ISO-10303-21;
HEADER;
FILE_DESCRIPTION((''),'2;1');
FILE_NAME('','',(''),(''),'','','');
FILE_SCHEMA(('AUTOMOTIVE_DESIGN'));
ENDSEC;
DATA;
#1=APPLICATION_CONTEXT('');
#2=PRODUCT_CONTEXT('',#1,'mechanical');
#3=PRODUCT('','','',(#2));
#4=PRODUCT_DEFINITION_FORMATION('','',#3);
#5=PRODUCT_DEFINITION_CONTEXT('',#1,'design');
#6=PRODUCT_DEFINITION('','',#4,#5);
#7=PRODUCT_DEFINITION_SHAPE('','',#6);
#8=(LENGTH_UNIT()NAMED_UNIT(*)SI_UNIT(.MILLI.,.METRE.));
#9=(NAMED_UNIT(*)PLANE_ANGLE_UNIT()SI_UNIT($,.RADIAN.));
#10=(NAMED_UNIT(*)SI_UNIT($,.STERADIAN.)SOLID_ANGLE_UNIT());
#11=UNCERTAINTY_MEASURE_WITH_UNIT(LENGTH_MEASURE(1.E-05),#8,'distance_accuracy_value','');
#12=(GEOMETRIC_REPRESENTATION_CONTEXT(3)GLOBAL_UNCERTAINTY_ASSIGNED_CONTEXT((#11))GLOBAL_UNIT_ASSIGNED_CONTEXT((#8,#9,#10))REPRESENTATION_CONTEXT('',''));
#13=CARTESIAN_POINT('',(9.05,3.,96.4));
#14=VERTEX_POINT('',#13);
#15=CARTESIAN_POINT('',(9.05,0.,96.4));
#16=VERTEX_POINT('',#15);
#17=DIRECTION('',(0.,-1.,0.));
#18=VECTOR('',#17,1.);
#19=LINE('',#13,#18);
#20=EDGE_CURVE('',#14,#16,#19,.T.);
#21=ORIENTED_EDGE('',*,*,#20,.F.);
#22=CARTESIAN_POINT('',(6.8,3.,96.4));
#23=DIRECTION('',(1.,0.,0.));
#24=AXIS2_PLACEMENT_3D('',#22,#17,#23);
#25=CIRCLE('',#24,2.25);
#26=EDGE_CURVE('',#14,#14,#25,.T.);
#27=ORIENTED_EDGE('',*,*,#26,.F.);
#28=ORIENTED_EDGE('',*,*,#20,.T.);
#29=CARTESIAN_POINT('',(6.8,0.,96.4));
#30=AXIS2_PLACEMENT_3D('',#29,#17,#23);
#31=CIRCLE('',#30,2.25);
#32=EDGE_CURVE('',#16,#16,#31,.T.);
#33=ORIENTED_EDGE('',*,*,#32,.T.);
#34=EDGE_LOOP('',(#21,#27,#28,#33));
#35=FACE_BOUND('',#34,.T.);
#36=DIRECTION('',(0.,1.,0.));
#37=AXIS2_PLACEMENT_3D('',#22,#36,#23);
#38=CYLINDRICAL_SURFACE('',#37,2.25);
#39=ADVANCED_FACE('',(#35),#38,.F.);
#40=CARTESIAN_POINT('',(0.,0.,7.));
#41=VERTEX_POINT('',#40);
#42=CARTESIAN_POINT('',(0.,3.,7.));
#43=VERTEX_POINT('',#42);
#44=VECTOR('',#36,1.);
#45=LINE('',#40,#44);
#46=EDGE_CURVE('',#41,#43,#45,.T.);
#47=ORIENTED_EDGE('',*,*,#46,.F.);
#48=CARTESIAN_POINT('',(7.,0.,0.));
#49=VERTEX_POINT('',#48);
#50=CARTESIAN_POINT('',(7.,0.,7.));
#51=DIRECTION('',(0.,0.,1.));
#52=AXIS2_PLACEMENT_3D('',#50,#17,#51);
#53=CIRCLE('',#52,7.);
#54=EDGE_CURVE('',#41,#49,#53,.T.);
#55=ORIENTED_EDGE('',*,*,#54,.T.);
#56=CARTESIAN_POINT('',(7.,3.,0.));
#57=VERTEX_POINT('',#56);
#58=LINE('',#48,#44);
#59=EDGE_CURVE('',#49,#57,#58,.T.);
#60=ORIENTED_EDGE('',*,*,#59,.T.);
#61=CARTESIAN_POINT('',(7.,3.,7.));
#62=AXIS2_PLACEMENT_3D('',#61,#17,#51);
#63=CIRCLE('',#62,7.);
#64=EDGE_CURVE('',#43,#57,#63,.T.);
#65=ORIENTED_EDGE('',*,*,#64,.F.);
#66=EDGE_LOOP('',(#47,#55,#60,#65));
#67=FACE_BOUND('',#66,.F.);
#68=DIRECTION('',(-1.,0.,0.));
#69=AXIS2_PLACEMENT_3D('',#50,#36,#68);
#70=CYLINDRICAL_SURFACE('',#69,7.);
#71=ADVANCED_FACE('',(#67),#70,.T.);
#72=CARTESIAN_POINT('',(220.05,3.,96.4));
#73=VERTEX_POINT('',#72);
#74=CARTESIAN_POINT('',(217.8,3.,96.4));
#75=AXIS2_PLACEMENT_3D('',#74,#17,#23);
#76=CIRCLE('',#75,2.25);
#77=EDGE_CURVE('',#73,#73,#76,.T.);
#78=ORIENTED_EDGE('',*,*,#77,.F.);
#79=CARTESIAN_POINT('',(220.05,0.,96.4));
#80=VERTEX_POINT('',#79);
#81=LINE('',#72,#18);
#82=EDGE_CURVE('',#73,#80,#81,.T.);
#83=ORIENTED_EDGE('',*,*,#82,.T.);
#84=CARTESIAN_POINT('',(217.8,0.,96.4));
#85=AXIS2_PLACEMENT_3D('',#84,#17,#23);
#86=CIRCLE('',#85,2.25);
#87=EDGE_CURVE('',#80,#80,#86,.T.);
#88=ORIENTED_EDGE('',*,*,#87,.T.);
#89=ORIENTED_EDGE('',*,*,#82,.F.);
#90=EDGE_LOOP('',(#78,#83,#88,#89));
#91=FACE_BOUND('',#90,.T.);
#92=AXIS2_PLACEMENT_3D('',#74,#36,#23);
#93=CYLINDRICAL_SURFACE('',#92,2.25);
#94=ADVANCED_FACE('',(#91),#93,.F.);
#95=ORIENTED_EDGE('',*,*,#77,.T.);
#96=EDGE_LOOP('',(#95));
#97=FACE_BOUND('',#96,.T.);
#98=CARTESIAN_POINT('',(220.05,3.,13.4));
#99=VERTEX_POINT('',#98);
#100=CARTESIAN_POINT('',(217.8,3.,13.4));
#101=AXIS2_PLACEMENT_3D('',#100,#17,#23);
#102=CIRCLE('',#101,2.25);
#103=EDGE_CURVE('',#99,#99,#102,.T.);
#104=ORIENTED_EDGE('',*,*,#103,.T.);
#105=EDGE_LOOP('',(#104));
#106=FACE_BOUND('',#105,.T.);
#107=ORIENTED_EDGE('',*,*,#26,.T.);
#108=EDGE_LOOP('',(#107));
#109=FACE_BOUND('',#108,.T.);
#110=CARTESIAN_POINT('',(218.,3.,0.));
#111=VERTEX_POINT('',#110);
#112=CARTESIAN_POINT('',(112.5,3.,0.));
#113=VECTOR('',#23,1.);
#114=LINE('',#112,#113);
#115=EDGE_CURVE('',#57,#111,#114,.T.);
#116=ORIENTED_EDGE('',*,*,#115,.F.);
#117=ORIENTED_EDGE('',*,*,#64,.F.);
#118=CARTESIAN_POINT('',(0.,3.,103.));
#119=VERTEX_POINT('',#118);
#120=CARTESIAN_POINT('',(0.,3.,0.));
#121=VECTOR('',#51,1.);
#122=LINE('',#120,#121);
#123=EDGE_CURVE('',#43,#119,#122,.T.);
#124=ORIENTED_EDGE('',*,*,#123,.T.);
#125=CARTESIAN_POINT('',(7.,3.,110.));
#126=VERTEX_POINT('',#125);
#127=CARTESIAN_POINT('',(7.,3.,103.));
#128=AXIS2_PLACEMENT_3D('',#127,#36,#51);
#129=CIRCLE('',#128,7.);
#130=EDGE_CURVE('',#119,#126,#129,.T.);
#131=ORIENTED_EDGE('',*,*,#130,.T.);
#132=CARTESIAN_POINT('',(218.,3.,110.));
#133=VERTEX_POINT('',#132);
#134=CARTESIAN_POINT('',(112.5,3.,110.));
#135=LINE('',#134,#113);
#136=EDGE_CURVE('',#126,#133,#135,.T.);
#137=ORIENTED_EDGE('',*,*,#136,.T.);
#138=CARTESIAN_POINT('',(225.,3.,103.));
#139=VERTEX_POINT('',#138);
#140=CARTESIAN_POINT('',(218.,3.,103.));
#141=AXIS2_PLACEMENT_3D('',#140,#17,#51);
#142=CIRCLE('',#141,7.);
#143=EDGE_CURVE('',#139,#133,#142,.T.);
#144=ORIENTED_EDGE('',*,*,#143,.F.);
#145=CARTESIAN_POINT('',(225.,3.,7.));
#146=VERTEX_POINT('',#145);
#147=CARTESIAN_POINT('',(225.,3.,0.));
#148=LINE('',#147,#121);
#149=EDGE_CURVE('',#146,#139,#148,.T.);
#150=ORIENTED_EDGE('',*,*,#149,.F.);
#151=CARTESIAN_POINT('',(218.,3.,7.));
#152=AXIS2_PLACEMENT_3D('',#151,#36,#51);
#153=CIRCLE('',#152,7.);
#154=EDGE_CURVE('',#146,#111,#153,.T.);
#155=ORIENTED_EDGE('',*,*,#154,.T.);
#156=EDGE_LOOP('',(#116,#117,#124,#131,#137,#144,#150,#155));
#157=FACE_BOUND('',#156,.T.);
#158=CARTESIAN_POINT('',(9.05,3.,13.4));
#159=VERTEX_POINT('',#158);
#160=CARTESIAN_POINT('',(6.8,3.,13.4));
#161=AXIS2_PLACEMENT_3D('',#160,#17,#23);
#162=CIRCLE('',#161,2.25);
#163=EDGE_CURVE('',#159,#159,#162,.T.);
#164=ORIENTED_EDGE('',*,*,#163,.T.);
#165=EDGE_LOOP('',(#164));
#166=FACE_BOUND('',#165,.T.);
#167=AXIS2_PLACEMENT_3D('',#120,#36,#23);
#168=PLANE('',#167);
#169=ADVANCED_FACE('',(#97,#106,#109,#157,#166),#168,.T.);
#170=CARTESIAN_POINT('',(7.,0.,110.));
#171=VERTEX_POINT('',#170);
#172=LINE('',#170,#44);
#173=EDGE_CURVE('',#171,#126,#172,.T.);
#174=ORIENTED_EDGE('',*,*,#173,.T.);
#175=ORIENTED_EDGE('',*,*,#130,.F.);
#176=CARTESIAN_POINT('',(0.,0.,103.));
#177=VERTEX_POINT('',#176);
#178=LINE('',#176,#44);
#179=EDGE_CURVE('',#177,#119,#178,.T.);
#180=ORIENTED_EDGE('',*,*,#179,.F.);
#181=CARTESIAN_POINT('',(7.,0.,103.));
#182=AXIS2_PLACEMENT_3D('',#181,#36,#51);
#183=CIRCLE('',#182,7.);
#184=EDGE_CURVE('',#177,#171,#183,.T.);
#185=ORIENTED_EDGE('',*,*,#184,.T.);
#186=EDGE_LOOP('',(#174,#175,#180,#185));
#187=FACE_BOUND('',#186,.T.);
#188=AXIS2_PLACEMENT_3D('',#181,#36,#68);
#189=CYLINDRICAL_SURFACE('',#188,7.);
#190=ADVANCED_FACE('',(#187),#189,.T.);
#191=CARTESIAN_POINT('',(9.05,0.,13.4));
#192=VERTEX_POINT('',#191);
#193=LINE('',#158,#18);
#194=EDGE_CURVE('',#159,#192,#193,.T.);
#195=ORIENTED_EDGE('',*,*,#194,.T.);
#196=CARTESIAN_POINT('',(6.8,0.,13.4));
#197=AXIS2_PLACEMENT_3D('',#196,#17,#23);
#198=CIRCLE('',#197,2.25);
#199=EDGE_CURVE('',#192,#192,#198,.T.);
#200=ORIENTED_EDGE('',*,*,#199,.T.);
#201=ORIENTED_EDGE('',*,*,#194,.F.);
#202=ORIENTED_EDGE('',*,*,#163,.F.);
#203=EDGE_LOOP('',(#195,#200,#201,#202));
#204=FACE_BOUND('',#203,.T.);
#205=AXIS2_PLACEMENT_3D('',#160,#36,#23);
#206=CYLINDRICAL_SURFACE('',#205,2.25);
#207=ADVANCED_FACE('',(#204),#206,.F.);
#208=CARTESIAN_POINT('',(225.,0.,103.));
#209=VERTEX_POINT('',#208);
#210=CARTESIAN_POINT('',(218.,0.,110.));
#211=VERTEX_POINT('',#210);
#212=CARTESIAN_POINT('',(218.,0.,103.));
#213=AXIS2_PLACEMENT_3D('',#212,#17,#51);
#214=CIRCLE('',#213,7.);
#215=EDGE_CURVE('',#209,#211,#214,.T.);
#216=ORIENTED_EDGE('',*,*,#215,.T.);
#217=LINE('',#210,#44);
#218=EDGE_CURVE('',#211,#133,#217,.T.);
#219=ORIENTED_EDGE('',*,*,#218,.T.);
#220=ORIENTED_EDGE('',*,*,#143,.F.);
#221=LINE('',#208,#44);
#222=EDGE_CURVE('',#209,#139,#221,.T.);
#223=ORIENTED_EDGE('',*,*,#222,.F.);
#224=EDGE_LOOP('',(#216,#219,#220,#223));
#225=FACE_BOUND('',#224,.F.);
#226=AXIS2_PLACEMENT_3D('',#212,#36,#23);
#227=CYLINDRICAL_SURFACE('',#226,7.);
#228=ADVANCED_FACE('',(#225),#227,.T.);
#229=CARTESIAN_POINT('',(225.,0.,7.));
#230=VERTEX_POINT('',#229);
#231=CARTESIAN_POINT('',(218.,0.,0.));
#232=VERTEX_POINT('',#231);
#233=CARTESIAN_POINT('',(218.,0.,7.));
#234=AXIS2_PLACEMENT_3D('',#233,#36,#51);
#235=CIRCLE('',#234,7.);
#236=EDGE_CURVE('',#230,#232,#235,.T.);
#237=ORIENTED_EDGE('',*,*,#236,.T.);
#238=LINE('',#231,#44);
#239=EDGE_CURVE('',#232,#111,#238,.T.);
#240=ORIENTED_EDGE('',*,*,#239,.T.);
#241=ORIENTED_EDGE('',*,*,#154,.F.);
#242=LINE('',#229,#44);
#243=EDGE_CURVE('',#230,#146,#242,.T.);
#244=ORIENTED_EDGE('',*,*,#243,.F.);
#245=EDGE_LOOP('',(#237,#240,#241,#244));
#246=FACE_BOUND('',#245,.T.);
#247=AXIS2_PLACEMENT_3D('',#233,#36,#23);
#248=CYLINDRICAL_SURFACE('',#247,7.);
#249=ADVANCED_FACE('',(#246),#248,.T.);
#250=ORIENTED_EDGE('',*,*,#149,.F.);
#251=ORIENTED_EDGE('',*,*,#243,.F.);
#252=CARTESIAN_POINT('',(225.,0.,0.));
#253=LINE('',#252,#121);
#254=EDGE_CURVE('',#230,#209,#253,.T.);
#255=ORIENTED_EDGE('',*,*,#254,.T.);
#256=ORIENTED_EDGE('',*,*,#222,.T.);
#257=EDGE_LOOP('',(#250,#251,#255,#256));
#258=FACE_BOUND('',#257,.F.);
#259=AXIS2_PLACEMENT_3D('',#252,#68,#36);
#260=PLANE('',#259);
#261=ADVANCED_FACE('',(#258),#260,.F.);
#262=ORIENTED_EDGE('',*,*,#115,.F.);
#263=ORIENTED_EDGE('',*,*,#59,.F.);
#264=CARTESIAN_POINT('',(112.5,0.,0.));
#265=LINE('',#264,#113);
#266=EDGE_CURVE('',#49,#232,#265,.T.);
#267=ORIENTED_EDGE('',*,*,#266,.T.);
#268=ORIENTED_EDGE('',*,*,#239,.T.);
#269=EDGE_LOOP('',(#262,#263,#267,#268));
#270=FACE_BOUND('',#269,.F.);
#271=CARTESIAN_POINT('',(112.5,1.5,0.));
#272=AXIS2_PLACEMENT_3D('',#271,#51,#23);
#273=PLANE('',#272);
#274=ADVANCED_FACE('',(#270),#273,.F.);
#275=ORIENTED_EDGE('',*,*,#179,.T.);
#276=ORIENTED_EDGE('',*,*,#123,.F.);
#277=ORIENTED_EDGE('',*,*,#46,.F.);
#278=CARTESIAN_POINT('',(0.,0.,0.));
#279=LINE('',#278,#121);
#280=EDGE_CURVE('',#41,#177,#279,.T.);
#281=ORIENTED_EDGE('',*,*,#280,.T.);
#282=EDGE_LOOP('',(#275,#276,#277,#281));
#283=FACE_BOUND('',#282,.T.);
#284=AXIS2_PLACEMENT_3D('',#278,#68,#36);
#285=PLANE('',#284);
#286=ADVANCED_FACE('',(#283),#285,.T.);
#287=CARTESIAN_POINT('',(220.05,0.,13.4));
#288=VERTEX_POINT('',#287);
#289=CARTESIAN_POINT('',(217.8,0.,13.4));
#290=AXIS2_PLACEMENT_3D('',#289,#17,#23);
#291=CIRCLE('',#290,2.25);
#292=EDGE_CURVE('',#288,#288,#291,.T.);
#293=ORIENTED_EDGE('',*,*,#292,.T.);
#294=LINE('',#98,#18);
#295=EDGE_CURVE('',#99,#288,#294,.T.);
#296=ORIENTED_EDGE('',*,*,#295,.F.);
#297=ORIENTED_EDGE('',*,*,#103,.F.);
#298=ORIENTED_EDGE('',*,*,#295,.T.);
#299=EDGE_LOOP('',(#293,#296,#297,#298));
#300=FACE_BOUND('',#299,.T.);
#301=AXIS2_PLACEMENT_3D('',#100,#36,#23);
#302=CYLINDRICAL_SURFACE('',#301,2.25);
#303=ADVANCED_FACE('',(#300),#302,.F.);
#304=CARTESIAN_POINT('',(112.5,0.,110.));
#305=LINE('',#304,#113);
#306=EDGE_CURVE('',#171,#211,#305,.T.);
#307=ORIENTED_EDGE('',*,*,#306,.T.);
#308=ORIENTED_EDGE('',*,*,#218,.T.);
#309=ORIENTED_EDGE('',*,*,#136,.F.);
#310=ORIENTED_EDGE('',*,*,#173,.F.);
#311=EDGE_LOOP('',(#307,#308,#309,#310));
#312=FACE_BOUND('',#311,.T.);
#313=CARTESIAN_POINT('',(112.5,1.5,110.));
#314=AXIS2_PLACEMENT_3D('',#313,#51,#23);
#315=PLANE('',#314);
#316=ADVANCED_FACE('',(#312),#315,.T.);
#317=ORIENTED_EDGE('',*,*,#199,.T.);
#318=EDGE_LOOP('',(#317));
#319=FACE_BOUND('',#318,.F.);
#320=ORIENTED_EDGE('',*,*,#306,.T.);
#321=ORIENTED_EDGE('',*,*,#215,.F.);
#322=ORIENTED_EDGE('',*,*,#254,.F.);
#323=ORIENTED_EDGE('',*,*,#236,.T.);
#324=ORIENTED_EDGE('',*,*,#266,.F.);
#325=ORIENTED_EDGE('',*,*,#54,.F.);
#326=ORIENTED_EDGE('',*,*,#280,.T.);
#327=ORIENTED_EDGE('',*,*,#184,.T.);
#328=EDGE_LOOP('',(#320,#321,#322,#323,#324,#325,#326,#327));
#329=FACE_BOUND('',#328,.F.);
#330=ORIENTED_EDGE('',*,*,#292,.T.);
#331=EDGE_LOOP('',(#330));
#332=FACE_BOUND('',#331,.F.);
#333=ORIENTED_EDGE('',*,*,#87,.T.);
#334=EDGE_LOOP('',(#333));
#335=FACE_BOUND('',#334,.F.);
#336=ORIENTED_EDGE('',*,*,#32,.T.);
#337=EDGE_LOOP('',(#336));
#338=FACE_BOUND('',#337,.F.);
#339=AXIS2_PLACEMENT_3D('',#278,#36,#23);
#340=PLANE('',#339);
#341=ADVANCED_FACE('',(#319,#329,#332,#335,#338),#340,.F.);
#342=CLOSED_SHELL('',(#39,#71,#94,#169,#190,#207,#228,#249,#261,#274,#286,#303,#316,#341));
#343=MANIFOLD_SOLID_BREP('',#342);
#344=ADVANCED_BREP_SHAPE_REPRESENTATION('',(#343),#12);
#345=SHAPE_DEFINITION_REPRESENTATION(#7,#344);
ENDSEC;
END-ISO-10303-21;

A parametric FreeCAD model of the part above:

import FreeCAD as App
import Part
import Sketcher
Q = App.Units.Quantity


def edges_at(feature, points):
    """Names of the edges that pass closest to the given points."""
    edges = feature.Shape.Edges
    near = lambda p: min(range(len(edges)), key=lambda i: edges[i].distToShape(Part.Vertex(*p))[0])
    return sorted({f"Edge{near(p) + 1}" for p in points})


def add_polygon(sketch, points):
    """Adds a closed chain of lines whose ends are joined by coincident constraints."""
    first, n = sketch.GeometryCount, len(points)
    for a, b in zip(points, points[1:] + points[:1]):
        sketch.addGeometry(Part.LineSegment(App.Vector(*a, 0), App.Vector(*b, 0)), False)
    for i in range(n):
        sketch.addConstraint(Sketcher.Constraint("Coincident", first + i, 2, first + (i + 1) % n, 1))

doc = App.newDocument("Part")
body = doc.addObject("PartDesign::Body", "Body")

# Sketch on XZ plane
sketch1 = doc.addObject("Sketcher::SketchObject", "Sketch")
body.addObject(sketch1)
sketch1.AttachmentSupport = (doc.XZ_Plane, [""])
sketch1.MapMode = "FlatFace"
sketch1.AttachmentOffset = App.Placement(App.Vector(0, 0, 18), App.Rotation())
sketch1.addGeometry(Part.Circle(App.Vector(217.8, 13.4, 0), App.Vector(0, 0, 1), 2.2), False)
sketch1.addConstraint(Sketcher.Constraint("Diameter", 0, Q("4.5 mm")))
sketch1.addConstraint(Sketcher.Constraint("DistanceX", -1, 1, 0, 3, Q("217.8 mm")))
sketch1.addConstraint(Sketcher.Constraint("DistanceY", -1, 1, 0, 3, Q("13.4 mm")))
pad1 = doc.addObject("PartDesign::Pad", "Pad")
body.addObject(pad1)
pad1.Profile = sketch1
pad1.Length = 3
body2 = doc.addObject("PartDesign::Body", "Body001")
body2.AllowCompound = True

# Sketch on XZ plane
sketch2 = doc.addObject("Sketcher::SketchObject", "Sketch001")
body2.addObject(sketch2)
sketch2.AttachmentSupport = (doc.getObject("XZ_Plane001"), [""])
sketch2.MapMode = "FlatFace"
sketch2.AttachmentOffset = App.Placement(App.Vector(0, 0, 18), App.Rotation())
sketch2.addGeometry(Part.Circle(App.Vector(217.8, 96.4, 0), App.Vector(0, 0, 1), 2.2), False)
sketch2.addConstraint(Sketcher.Constraint("Diameter", 0, Q("4.5 mm")))
sketch2.addConstraint(Sketcher.Constraint("DistanceX", -1, 1, 0, 3, Q("217.8 mm")))
sketch2.addConstraint(Sketcher.Constraint("DistanceY", -1, 1, 0, 3, Q("96.4 mm")))
pad2 = doc.addObject("PartDesign::Pad", "Pad001")
body2.addObject(pad2)
pad2.Profile = sketch2
pad2.Length = 3
doc.recompute()

boolean = doc.addObject("PartDesign::Boolean", "Boolean")
body2.addObject(boolean)
boolean.Type = "Fuse"
boolean.addObjects([body])
body3 = doc.addObject("PartDesign::Body", "Body002")

# Sketch on XZ plane
sketch3 = doc.addObject("Sketcher::SketchObject", "Sketch002")
body3.addObject(sketch3)
sketch3.AttachmentSupport = (doc.getObject("XZ_Plane002"), [""])
sketch3.MapMode = "FlatFace"
sketch3.AttachmentOffset = App.Placement(App.Vector(0, 0, 18), App.Rotation())
sketch3.addGeometry(Part.Circle(App.Vector(6.8, 96.4, 0), App.Vector(0, 0, 1), 2.2), False)
sketch3.addConstraint(Sketcher.Constraint("Diameter", 0, Q("4.5 mm")))
sketch3.addConstraint(Sketcher.Constraint("DistanceX", -1, 1, 0, 3, Q("6.8 mm")))
sketch3.addConstraint(Sketcher.Constraint("DistanceY", -1, 1, 0, 3, Q("96.4 mm")))
pad3 = doc.addObject("PartDesign::Pad", "Pad002")
body3.addObject(pad3)
pad3.Profile = sketch3
pad3.Length = 3
body4 = doc.addObject("PartDesign::Body", "Body003")
body4.AllowCompound = True

# Sketch on XZ plane
sketch4 = doc.addObject("Sketcher::SketchObject", "Sketch003")
body4.addObject(sketch4)
sketch4.AttachmentSupport = (doc.getObject("XZ_Plane003"), [""])
sketch4.MapMode = "FlatFace"
sketch4.AttachmentOffset = App.Placement(App.Vector(0, 0, 18), App.Rotation())
sketch4.addGeometry(Part.Circle(App.Vector(6.8, 13.4, 0), App.Vector(0, 0, 1), 2.2), False)
sketch4.addConstraint(Sketcher.Constraint("Diameter", 0, Q("4.5 mm")))
sketch4.addConstraint(Sketcher.Constraint("DistanceX", -1, 1, 0, 3, Q("6.8 mm")))
sketch4.addConstraint(Sketcher.Constraint("DistanceY", -1, 1, 0, 3, Q("13.4 mm")))
pad4 = doc.addObject("PartDesign::Pad", "Pad003")
body4.addObject(pad4)
pad4.Profile = sketch4
pad4.Length = 3
doc.recompute()

boolean2 = doc.addObject("PartDesign::Boolean", "Boolean001")
body4.addObject(boolean2)
boolean2.Type = "Fuse"
boolean2.addObjects([body3])
doc.recompute()

boolean3 = doc.addObject("PartDesign::Boolean", "Boolean002")
body4.addObject(boolean3)
boolean3.Type = "Fuse"
boolean3.addObjects([body2])
body5 = doc.addObject("PartDesign::Body", "Body004")
body5.AllowCompound = True
doc.recompute()

body4.Placement = App.Placement(App.Vector(0, 21, 0), App.Rotation(App.Vector(0, 0, 1), 0))
boolean4 = doc.addObject("PartDesign::Boolean", "Boolean003")
body5.addObject(boolean4)
boolean4.Type = "Fuse"
boolean4.addObjects([body4])
body6 = doc.addObject("PartDesign::Body", "Body005")

# Sketch on XY plane
sketch5 = doc.addObject("Sketcher::SketchObject", "Sketch004")
body6.addObject(sketch5)
sketch5.AttachmentSupport = (doc.getObject("XY_Plane005"), [""])
sketch5.MapMode = "FlatFace"
add_polygon(sketch5, [(0, 3), (0, 0), (225, 0), (225, 3)])  # lines 0-3
sketch5.addConstraint(Sketcher.Constraint("Vertical", 0))
sketch5.addConstraint(Sketcher.Constraint("Horizontal", 1))
sketch5.addConstraint(Sketcher.Constraint("Vertical", 2))
sketch5.addConstraint(Sketcher.Constraint("Horizontal", 3))
sketch5.addConstraint(Sketcher.Constraint("Coincident", 0, 2, -1, 1))
sketch5.addConstraint(Sketcher.Constraint("DistanceX", 1, 1, 1, 2, Q("225 mm")))
sketch5.addConstraint(Sketcher.Constraint("DistanceY", 0, 2, 0, 1, Q("3 mm")))
pad5 = doc.addObject("PartDesign::Pad", "Pad004")
body6.addObject(pad5)
pad5.Profile = sketch5
pad5.Length = 110
doc.recompute()

fillet = doc.addObject("PartDesign::Fillet", "Fillet")
body6.addObject(fillet)
fillet.Base = (pad5, edges_at(pad5, [
    (0, 1.5, 110),
    (0, 1.5, 0),
    (225, 1.5, 110),
    (225, 1.5, 0),
]))
fillet.Radius = 7
doc.recompute()

boolean5 = doc.addObject("PartDesign::Boolean", "Boolean004")
body6.addObject(boolean5)
boolean5.Type = "Cut"
boolean5.addObjects([body5])

doc.recompute()
